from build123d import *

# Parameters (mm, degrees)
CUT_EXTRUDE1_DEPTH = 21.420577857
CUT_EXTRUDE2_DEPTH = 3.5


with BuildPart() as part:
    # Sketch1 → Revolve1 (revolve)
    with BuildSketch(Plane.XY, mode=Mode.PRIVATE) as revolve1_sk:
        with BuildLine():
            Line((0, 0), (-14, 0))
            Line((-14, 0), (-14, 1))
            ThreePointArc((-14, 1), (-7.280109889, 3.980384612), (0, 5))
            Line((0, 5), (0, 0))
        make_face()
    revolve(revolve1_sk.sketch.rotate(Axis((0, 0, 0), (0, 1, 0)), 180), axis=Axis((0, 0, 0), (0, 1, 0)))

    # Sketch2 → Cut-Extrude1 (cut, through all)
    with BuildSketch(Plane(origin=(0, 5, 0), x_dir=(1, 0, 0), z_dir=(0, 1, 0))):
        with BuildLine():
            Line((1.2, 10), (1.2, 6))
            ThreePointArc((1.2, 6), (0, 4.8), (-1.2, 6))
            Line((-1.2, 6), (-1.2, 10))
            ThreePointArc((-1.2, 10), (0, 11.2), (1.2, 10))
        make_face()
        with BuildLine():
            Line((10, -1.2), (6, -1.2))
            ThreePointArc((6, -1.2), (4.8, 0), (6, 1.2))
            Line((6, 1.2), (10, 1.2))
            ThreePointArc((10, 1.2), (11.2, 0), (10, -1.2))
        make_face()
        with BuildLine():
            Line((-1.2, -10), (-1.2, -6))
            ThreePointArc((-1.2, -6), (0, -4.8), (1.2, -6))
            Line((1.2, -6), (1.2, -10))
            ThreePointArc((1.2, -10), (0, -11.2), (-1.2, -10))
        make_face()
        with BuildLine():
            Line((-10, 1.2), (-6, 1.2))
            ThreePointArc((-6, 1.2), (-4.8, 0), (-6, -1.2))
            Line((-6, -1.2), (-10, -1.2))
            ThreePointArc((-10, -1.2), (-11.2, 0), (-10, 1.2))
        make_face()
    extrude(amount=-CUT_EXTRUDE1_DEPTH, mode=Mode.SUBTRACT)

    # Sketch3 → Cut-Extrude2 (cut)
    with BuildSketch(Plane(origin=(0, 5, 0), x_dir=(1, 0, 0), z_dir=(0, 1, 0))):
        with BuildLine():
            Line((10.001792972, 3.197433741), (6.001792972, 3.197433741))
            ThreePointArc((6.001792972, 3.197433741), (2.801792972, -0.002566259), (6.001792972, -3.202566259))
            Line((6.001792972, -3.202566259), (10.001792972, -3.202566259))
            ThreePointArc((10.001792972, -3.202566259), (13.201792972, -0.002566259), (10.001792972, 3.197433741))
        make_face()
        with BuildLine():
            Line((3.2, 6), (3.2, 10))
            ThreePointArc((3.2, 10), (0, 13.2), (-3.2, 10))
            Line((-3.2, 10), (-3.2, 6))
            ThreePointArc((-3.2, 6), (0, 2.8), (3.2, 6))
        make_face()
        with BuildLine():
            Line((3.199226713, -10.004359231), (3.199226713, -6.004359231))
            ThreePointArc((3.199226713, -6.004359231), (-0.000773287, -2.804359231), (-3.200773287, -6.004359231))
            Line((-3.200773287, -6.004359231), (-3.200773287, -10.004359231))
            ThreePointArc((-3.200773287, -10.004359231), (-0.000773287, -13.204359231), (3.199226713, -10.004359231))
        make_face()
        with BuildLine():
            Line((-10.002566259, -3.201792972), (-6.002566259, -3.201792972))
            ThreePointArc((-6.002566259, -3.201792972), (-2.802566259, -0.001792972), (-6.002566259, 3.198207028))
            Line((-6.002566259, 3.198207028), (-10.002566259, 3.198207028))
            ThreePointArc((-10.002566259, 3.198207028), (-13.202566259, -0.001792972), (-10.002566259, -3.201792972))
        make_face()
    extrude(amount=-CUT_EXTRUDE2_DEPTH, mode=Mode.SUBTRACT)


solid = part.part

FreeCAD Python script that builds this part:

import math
import FreeCAD as App
import Part
import Sketcher

V = App.Vector

doc = App.newDocument("Part")
body = doc.addObject("PartDesign::Body", "Body")

sketch1 = body.newObject("Sketcher::SketchObject", "Sketch")
sketch1.AttachmentSupport = (doc.getObject("XY_Plane"), [""])
sketch1.MapMode = "FlatFace"
sketch1.addGeometry(Part.LineSegment(V(-14, 0, 0), V(0, 0, 0)), False)
sketch1.addGeometry(Part.LineSegment(V(0, 0, 0), V(0, 5, 0)), False)
sketch1.addGeometry(Part.ArcOfCircle(Part.Circle(V(0, -21.5, 0), V(0, 0, 1), 26.5), math.radians(90), math.radians(121.890792)), False)
sketch1.addGeometry(Part.LineSegment(V(-14, 1, 0), V(-14, 0, 0)), False)
sketch1.addConstraint(Sketcher.Constraint("Coincident", 0, 2, 1, 1))
sketch1.addConstraint(Sketcher.Constraint("Coincident", 1, 2, 2, 1))
sketch1.addConstraint(Sketcher.Constraint("Coincident", 2, 2, 3, 1))
sketch1.addConstraint(Sketcher.Constraint("Coincident", 3, 2, 0, 1))
sketch1.addConstraint(Sketcher.Constraint("Horizontal", 0))
sketch1.addConstraint(Sketcher.Constraint("Vertical", 1))
sketch1.addConstraint(Sketcher.Constraint("Vertical", 3))
sketch1.addConstraint(Sketcher.Constraint("Coincident", 0, 2, -1, 1))
sketch1.addConstraint(Sketcher.Constraint("PointOnObject", 2, 3, -2))
sketch1.addConstraint(Sketcher.Constraint("Radius", 2, 26.5))
sketch1.addConstraint(Sketcher.Constraint("DistanceX", 0, 1, 0, 2, 14.0))
sketch1.addConstraint(Sketcher.Constraint("DistanceY", 1, 1, 1, 2, 5.0))
revolution = body.newObject("PartDesign::Revolution", "Revolution")
revolution.Profile = sketch1
revolution.ReferenceAxis = (sketch1, ["V_Axis"])
revolution.Angle = 360

sketch2 = body.newObject("Sketcher::SketchObject", "Sketch001")
sketch2.AttachmentSupport = (doc.getObject("XZ_Plane"), [""])
sketch2.MapMode = "FlatFace"
sketch2.AttachmentOffset = App.Placement(V(0, 0, -5), App.Rotation())
sketch2.addGeometry(Part.LineSegment(V(1.2, -6, 0), V(1.2, -10, 0)), False)
sketch2.addGeometry(Part.ArcOfCircle(Part.Circle(V(0, -10, 0), V(0, 0, 1), 1.2), math.radians(180), math.radians(360)), False)
sketch2.addGeometry(Part.LineSegment(V(-1.2, -10, 0), V(-1.2, -6, 0)), False)
sketch2.addGeometry(Part.ArcOfCircle(Part.Circle(V(0, -6, 0), V(0, 0, 1), 1.2), math.radians(0), math.radians(180)), False)
sketch2.addGeometry(Part.LineSegment(V(6, 1.2, 0), V(10, 1.2, 0)), False)
sketch2.addGeometry(Part.ArcOfCircle(Part.Circle(V(10, 0, 0), V(0, 0, 1), 1.2), math.radians(-90), math.radians(90)), False)
sketch2.addGeometry(Part.LineSegment(V(10, -1.2, 0), V(6, -1.2, 0)), False)
sketch2.addGeometry(Part.ArcOfCircle(Part.Circle(V(6, 0, 0), V(0, 0, 1), 1.2), math.radians(90), math.radians(270)), False)
sketch2.addGeometry(Part.LineSegment(V(-1.2, 6, 0), V(-1.2, 10, 0)), False)
sketch2.addGeometry(Part.ArcOfCircle(Part.Circle(V(0, 10, 0), V(0, 0, 1), 1.2), math.radians(0), math.radians(180)), False)
sketch2.addGeometry(Part.LineSegment(V(1.2, 10, 0), V(1.2, 6, 0)), False)
sketch2.addGeometry(Part.ArcOfCircle(Part.Circle(V(0, 6, 0), V(0, 0, 1), 1.2), math.radians(180), math.radians(360)), False)
sketch2.addGeometry(Part.LineSegment(V(-6, -1.2, 0), V(-10, -1.2, 0)), False)
sketch2.addGeometry(Part.ArcOfCircle(Part.Circle(V(-10, 0, 0), V(0, 0, 1), 1.2), math.radians(90), math.radians(270)), False)
sketch2.addGeometry(Part.LineSegment(V(-10, 1.2, 0), V(-6, 1.2, 0)), False)
sketch2.addGeometry(Part.ArcOfCircle(Part.Circle(V(-6, 0, 0), V(0, 0, 1), 1.2), math.radians(-90), math.radians(90)), False)
sketch2.addConstraint(Sketcher.Constraint("Tangent", 0, 2, 1, 2))
sketch2.addConstraint(Sketcher.Constraint("Tangent", 1, 1, 2, 1))
sketch2.addConstraint(Sketcher.Constraint("Tangent", 2, 2, 3, 2))
sketch2.addConstraint(Sketcher.Constraint("Tangent", 3, 1, 0, 1))
sketch2.addConstraint(Sketcher.Constraint("Tangent", 4, 2, 5, 2))
sketch2.addConstraint(Sketcher.Constraint("Tangent", 5, 1, 6, 1))
sketch2.addConstraint(Sketcher.Constraint("Tangent", 6, 2, 7, 2))
sketch2.addConstraint(Sketcher.Constraint("Tangent", 7, 1, 4, 1))
sketch2.addConstraint(Sketcher.Constraint("Tangent", 8, 2, 9, 2))
sketch2.addConstraint(Sketcher.Constraint("Tangent", 9, 1, 10, 1))
sketch2.addConstraint(Sketcher.Constraint("Tangent", 10, 2, 11, 2))
sketch2.addConstraint(Sketcher.Constraint("Tangent", 11, 1, 8, 1))
sketch2.addConstraint(Sketcher.Constraint("Tangent", 12, 2, 13, 2))
sketch2.addConstraint(Sketcher.Constraint("Tangent", 13, 1, 14, 1))
sketch2.addConstraint(Sketcher.Constraint("Tangent", 14, 2, 15, 2))
sketch2.addConstraint(Sketcher.Constraint("Tangent", 15, 1, 12, 1))
sketch2.addConstraint(Sketcher.Constraint("Vertical", 0))
sketch2.addConstraint(Sketcher.Constraint("Vertical", 2))
sketch2.addConstraint(Sketcher.Constraint("Horizontal", 4))
sketch2.addConstraint(Sketcher.Constraint("Horizontal", 6))
sketch2.addConstraint(Sketcher.Constraint("Vertical", 8))
sketch2.addConstraint(Sketcher.Constraint("Vertical", 10))
sketch2.addConstraint(Sketcher.Constraint("Horizontal", 12))
sketch2.addConstraint(Sketcher.Constraint("Horizontal", 14))
sketch2.addConstraint(Sketcher.Constraint("Equal", 3, 5))
sketch2.addConstraint(Sketcher.Constraint("Equal", 7, 9))
sketch2.addConstraint(Sketcher.Constraint("Equal", 11, 13))
sketch2.addConstraint(Sketcher.Constraint("Symmetric", 1, 3, 9, 3, -1, 1))
sketch2.addConstraint(Sketcher.Constraint("Symmetric", 5, 3, 13, 3, -1, 1))
sketch2.addConstraint(Sketcher.Constraint("Symmetric", 7, 3, 15, 3, -2))
sketch2.addConstraint(Sketcher.Constraint("Symmetric", 3, 3, 11, 3, -1))
sketch2.addConstraint(Sketcher.Constraint("Equal", 14, 0))
sketch2.addConstraint(Sketcher.Constraint("Radius", 1, 1.2))
sketch2.addConstraint(Sketcher.Constraint("DistanceX", 4, 1, 4, 2, 4.0))
sketch2.addConstraint(Sketcher.Constraint("DistanceY", 1, 3, -1, 1, 10.0))
sketch2.addConstraint(Sketcher.Constraint("DistanceX", -1, 1, 5, 3, 10.0))
pocket1 = body.newObject("PartDesign::Pocket", "Pocket")
pocket1.Profile = sketch2
pocket1.Type = "ThroughAll"
pocket1.Reversed = True

sketch3 = body.newObject("Sketcher::SketchObject", "Sketch002")
sketch3.AttachmentSupport = (doc.getObject("XZ_Plane"), [""])
sketch3.MapMode = "FlatFace"
sketch3.AttachmentOffset = App.Placement(V(0, 0, -5), App.Rotation())
sketch3.addGeometry(Part.LineSegment(V(10.001793, -3.197434, 0), V(6.001793, -3.197434, 0)), False)
sketch3.addGeometry(Part.ArcOfCircle(Part.Circle(V(6.001793, 0.002566, 0), V(0, 0, 1), 3.2), math.radians(90), math.radians(270)), False)
sketch3.addGeometry(Part.LineSegment(V(6.001793, 3.202566, 0), V(10.001793, 3.202566, 0)), False)
sketch3.addGeometry(Part.ArcOfCircle(Part.Circle(V(10.001793, 0.002566, 0), V(0, 0, 1), 3.2), math.radians(-90), math.radians(90)), False)
sketch3.addGeometry(Part.LineSegment(V(3.2, -6, 0), V(3.2, -10, 0)), False)
sketch3.addGeometry(Part.ArcOfCircle(Part.Circle(V(0, -10, 0), V(0, 0, 1), 3.2), math.radians(180), math.radians(360)), False)
sketch3.addGeometry(Part.LineSegment(V(-3.2, -10, 0), V(-3.2, -6, 0)), False)
sketch3.addGeometry(Part.ArcOfCircle(Part.Circle(V(0, -6, 0), V(0, 0, 1), 3.2), math.radians(0), math.radians(180)), False)
sketch3.addGeometry(Part.LineSegment(V(3.199227, 10.004359, 0), V(3.199227, 6.004359, 0)), False)
sketch3.addGeometry(Part.ArcOfCircle(Part.Circle(V(-0.000773, 6.004359, 0), V(0, 0, 1), 3.2), math.radians(180), math.radians(360)), False)
sketch3.addGeometry(Part.LineSegment(V(-3.200773, 6.004359, 0), V(-3.200773, 10.004359, 0)), False)
sketch3.addGeometry(Part.ArcOfCircle(Part.Circle(V(-0.000773, 10.004359, 0), V(0, 0, 1), 3.2), math.radians(0), math.radians(180)), False)
sketch3.addGeometry(Part.LineSegment(V(-10.002566, 3.201793, 0), V(-6.002566, 3.201793, 0)), False)
sketch3.addGeometry(Part.ArcOfCircle(Part.Circle(V(-6.002566, 0.001793, 0), V(0, 0, 1), 3.2), math.radians(-90), math.radians(90)), False)
sketch3.addGeometry(Part.LineSegment(V(-6.002566, -3.198207, 0), V(-10.002566, -3.198207, 0)), False)
sketch3.addGeometry(Part.ArcOfCircle(Part.Circle(V(-10.002566, 0.001793, 0), V(0, 0, 1), 3.2), math.radians(90), math.radians(270)), False)
sketch3.addConstraint(Sketcher.Constraint("Tangent", 0, 2, 1, 2))
sketch3.addConstraint(Sketcher.Constraint("Tangent", 1, 1, 2, 1))
sketch3.addConstraint(Sketcher.Constraint("Tangent", 2, 2, 3, 2))
sketch3.addConstraint(Sketcher.Constraint("Tangent", 3, 1, 0, 1))
sketch3.addConstraint(Sketcher.Constraint("Tangent", 4, 2, 5, 2))
sketch3.addConstraint(Sketcher.Constraint("Tangent", 5, 1, 6, 1))
sketch3.addConstraint(Sketcher.Constraint("Tangent", 6, 2, 7, 2))
sketch3.addConstraint(Sketcher.Constraint("Tangent", 7, 1, 4, 1))
sketch3.addConstraint(Sketcher.Constraint("Tangent", 8, 2, 9, 2))
sketch3.addConstraint(Sketcher.Constraint("Tangent", 9, 1, 10, 1))
sketch3.addConstraint(Sketcher.Constraint("Tangent", 10, 2, 11, 2))
sketch3.addConstraint(Sketcher.Constraint("Tangent", 11, 1, 8, 1))
sketch3.addConstraint(Sketcher.Constraint("Tangent", 12, 2, 13, 2))
sketch3.addConstraint(Sketcher.Constraint("Tangent", 13, 1, 14, 1))
sketch3.addConstraint(Sketcher.Constraint("Tangent", 14, 2, 15, 2))
sketch3.addConstraint(Sketcher.Constraint("Tangent", 15, 1, 12, 1))
sketch3.addConstraint(Sketcher.Constraint("Horizontal", 0))
sketch3.addConstraint(Sketcher.Constraint("Horizontal", 2))
sketch3.addConstraint(Sketcher.Constraint("Vertical", 4))
sketch3.addConstraint(Sketcher.Constraint("Vertical", 6))
sketch3.addConstraint(Sketcher.Constraint("Vertical", 8))
sketch3.addConstraint(Sketcher.Constraint("Vertical", 10))
sketch3.addConstraint(Sketcher.Constraint("Horizontal", 12))
sketch3.addConstraint(Sketcher.Constraint("Horizontal", 14))
sketch3.addConstraint(Sketcher.Constraint("Equal", 3, 5))
sketch3.addConstraint(Sketcher.Constraint("Equal", 7, 9))
sketch3.addConstraint(Sketcher.Constraint("Equal", 11, 13))
sketch3.addConstraint(Sketcher.Constraint("PointOnObject", 5, 3, -2))
sketch3.addConstraint(Sketcher.Constraint("Equal", 2, 12))
sketch3.addConstraint(Sketcher.Constraint("Equal", 14, 4))
sketch3.addConstraint(Sketcher.Constraint("Equal", 6, 8))
sketch3.addConstraint(Sketcher.Constraint("Radius", 1, 3.2))
sketch3.addConstraint(Sketcher.Constraint("DistanceX", 0, 2, 0, 1, 4.0))
sketch3.addConstraint(Sketcher.Constraint("DistanceY", 5, 3, -1, 1, 10.0))
sketch3.addConstraint(Sketcher.Constraint("DistanceY", -1, 1, 9, 3, 6.004359))
sketch3.addConstraint(Sketcher.Constraint("DistanceX", 13, 3, 1, 3, 12.004359))
sketch3.addConstraint(Sketcher.Constraint("DistanceX", -1, 1, 1, 3, 6.001793))
sketch3.addConstraint(Sketcher.Constraint("DistanceY", -1, 1, 1, 3, 0.002566))
sketch3.addConstraint(Sketcher.Constraint("DistanceX", 9, 3, -1, 1, 0.000773))
sketch3.addConstraint(Sketcher.Constraint("DistanceY", -1, 1, 13, 3, 0.001793))
pocket2 = body.newObject("PartDesign::Pocket", "Pocket001")
pocket2.Profile = sketch3
pocket2.Length = 3.5
pocket2.Reversed = True

doc.recompute()
